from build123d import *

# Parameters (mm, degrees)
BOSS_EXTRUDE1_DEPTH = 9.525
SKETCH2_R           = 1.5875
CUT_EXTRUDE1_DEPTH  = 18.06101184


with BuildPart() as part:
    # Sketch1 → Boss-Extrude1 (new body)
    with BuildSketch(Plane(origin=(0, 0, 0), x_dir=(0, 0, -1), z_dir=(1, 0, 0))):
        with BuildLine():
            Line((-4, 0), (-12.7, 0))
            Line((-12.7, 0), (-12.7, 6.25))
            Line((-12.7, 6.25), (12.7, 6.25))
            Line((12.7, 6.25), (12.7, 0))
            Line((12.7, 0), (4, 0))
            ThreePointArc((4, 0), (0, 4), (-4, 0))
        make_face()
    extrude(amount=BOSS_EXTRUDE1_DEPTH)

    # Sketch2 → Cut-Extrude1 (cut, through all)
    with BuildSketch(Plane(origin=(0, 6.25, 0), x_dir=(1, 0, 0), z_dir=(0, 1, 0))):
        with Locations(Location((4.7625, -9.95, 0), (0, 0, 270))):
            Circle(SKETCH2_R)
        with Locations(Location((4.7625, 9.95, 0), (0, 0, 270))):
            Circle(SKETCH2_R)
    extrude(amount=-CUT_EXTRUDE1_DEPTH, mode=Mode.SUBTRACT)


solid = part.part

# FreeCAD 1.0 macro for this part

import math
import FreeCAD as App
import Part
import Sketcher
from FreeCAD import Vector
Q = App.Units.Quantity

doc = App.newDocument("Part")
body = doc.addObject("PartDesign::Body", "Body")

sketch1 = body.newObject("Sketcher::SketchObject", "Sketch")
sketch1.AttachmentSupport = (doc.getObject("YZ_Plane"), [""])
sketch1.MapMode = "FlatFace"
sketch1.addGeometry([
    Part.LineSegment(Vector(0, 12.7, 0), Vector(0, 4, 0)),
    Part.ArcOfCircle(Part.Circle(Vector(0, 0, 0), Vector(0, 0, 1), 4), math.radians(-90), math.radians(90)),
    Part.LineSegment(Vector(0, -4, 0), Vector(0, -12.7, 0)),
    Part.LineSegment(Vector(0, -12.7, 0), Vector(6.25, -12.7, 0)),
    Part.LineSegment(Vector(6.25, -12.7, 0), Vector(6.25, 12.7, 0)),
    Part.LineSegment(Vector(6.25, 12.7, 0), Vector(0, 12.7, 0)),
], False)
sketch1.addConstraint([
    Sketcher.Constraint("Coincident", 0, 2, 1, 2),
    Sketcher.Constraint("Coincident", 1, 1, 2, 1),
    Sketcher.Constraint("Coincident", 2, 2, 3, 1),
    Sketcher.Constraint("Coincident", 3, 2, 4, 1),
    Sketcher.Constraint("Coincident", 4, 2, 5, 1),
    Sketcher.Constraint("Coincident", 5, 2, 0, 1),
    Sketcher.Constraint("Vertical", 0),
    Sketcher.Constraint("Vertical", 2),
    Sketcher.Constraint("Horizontal", 3),
    Sketcher.Constraint("Vertical", 4),
    Sketcher.Constraint("Horizontal", 5),
    Sketcher.Constraint("Coincident", 1, 3, -1, 1),
    Sketcher.Constraint("Symmetric", 2, 2, 5, 2, -1, 1),
    Sketcher.Constraint("PointOnObject", 0, 2, -2),
    Sketcher.Constraint("DistanceY", 4, 1, 4, 2, Q("1 in")),
    Sketcher.Constraint("Radius", 1, Q("4 mm")),
    Sketcher.Constraint("DistanceX", 3, 1, 3, 2, Q("6.25 mm")),
])
pad1 = body.newObject("PartDesign::Pad", "Pad")
pad1.Profile = sketch1
pad1.Length = Q("0.375 in")

sketch2 = body.newObject("Sketcher::SketchObject", "Sketch001")
sketch2.AttachmentSupport = (doc.getObject("XZ_Plane"), [""])
sketch2.MapMode = "FlatFace"
sketch2.AttachmentOffset = App.Placement(Vector(0, 0, -6.25), App.Rotation())
sketch2.addGeometry([
    Part.Circle(Vector(4.7625, 9.95, 0), Vector(0, 0, 1), 1.5875),
    Part.Circle(Vector(4.7625, -9.95, 0), Vector(0, 0, 1), 1.5875),
], False)
sketch2.addConstraint([
    Sketcher.Constraint("Equal", 0, 1),
    Sketcher.Constraint("Symmetric", 0, 3, 1, 3, -1),
    Sketcher.Constraint("Diameter", 0, Q("0.125 in")),
    Sketcher.Constraint("DistanceX", -1, 1, 0, 3, Q("0.1875 in")),
    Sketcher.Constraint("DistanceY", -1, 1, 0, 3, Q("9.95 mm")),
])
pocket1 = body.newObject("PartDesign::Pocket", "Pocket")
pocket1.Profile = sketch2
pocket1.Type = "ThroughAll"
pocket1.Reversed = True

doc.recompute()
